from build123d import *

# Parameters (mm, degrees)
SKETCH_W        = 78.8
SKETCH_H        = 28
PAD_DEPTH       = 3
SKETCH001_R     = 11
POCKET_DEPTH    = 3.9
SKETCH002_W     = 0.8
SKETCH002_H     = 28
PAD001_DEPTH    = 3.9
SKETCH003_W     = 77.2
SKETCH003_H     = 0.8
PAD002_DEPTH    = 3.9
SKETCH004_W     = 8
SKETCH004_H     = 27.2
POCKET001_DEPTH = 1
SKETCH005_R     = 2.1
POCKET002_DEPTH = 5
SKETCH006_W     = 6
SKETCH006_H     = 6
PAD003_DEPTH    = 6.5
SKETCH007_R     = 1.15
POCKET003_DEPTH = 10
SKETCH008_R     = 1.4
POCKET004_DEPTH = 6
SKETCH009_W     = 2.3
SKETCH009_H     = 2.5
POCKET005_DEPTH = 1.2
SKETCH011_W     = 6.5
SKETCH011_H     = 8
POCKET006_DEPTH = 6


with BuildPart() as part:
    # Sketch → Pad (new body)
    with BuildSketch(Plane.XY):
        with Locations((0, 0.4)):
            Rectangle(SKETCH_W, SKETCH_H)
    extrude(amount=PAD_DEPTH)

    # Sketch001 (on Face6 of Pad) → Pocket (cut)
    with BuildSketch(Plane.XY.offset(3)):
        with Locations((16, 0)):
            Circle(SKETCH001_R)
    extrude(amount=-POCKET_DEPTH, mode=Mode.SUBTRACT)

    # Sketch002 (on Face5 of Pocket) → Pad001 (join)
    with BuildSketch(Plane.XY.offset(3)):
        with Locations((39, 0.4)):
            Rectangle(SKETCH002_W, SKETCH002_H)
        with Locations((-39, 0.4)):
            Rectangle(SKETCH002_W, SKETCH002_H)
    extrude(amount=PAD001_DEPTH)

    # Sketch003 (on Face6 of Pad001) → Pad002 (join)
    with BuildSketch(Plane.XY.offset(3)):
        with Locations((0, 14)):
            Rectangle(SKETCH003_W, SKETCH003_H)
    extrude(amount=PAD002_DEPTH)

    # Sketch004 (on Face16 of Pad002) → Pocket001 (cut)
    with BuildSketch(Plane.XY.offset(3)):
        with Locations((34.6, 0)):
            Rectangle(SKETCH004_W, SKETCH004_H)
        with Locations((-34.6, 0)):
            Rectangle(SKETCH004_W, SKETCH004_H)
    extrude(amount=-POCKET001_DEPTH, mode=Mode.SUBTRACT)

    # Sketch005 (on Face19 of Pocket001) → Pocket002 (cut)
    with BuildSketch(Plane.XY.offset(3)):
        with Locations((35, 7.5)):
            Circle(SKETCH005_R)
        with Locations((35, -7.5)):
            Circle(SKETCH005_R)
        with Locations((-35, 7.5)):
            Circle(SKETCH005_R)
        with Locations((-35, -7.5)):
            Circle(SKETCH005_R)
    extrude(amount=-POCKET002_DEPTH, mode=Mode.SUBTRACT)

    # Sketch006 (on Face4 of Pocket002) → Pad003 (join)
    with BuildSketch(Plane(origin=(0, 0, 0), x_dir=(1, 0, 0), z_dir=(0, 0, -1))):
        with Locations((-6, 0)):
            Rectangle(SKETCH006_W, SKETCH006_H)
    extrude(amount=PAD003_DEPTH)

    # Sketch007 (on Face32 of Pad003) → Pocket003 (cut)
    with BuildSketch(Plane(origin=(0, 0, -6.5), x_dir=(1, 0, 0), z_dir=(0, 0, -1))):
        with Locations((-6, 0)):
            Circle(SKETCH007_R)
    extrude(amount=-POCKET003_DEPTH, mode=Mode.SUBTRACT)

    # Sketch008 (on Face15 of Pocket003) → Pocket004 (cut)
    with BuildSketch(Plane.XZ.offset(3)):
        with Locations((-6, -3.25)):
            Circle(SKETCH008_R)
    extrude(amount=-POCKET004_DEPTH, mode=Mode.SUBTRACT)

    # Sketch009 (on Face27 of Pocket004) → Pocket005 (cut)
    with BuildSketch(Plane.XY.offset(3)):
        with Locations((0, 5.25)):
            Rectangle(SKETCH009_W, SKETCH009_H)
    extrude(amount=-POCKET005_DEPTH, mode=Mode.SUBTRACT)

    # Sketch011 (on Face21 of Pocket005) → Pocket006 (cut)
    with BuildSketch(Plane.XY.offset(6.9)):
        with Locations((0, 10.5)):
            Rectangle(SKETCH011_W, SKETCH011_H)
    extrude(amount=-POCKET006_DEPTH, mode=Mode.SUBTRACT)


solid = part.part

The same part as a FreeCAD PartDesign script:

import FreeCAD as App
import Part
import Sketcher
Q = App.Units.Quantity


def add_polygon(sketch, points):
    """Adds a closed chain of lines whose ends are joined by coincident constraints."""
    first, n = sketch.GeometryCount, len(points)
    for a, b in zip(points, points[1:] + points[:1]):
        sketch.addGeometry(Part.LineSegment(App.Vector(*a, 0), App.Vector(*b, 0)), False)
    for i in range(n):
        sketch.addConstraint(Sketcher.Constraint("Coincident", first + i, 2, first + (i + 1) % n, 1))

doc = App.newDocument("Part")
body = doc.addObject("PartDesign::Body", "Body")

sketch1 = body.newObject("Sketcher::SketchObject", "Sketch")
sketch1.AttachmentSupport = (doc.getObject("XY_Plane"), [""])
sketch1.MapMode = "FlatFace"
add_polygon(sketch1, [(-39, 14), (-39, -14), (39, -14), (39, 14)])
sketch1.addConstraint([
    Sketcher.Constraint("Vertical", 0),
    Sketcher.Constraint("Horizontal", 1),
    Sketcher.Constraint("Vertical", 2),
    Sketcher.Constraint("Horizontal", 3),
    Sketcher.Constraint("DistanceY", 0, 2, 0, 1, Q("28 mm")),
    Sketcher.Constraint("DistanceX", 1, 1, 1, 2, Q("78.8 mm")),
    Sketcher.Constraint("DistanceX", 0, 2, -1, 1, Q("39.4 mm")),
    Sketcher.Constraint("DistanceY", 0, 2, -1, 1, Q("13.6 mm")),
])
pad1 = body.newObject("PartDesign::Pad", "Pad")
pad1.Profile = sketch1
pad1.Length = 3

sketch2 = body.newObject("Sketcher::SketchObject", "Sketch001")
sketch2.AttachmentSupport = (doc.getObject("XY_Plane"), [""])
sketch2.MapMode = "FlatFace"
sketch2.AttachmentOffset = App.Placement(App.Vector(0, 0, 3), App.Rotation())
sketch2.addGeometry(Part.Circle(App.Vector(16, 0, 0), App.Vector(0, 0, 1), 11), False)
sketch2.addConstraint([
    Sketcher.Constraint("PointOnObject", 0, 3, -1),
    Sketcher.Constraint("Diameter", 0, Q("22 mm")),
    Sketcher.Constraint("DistanceX", -1, 1, 0, 3, Q("16 mm")),
])
pocket1 = body.newObject("PartDesign::Pocket", "Pocket")
pocket1.Profile = sketch2
pocket1.Length = 3.9

sketch3 = body.newObject("Sketcher::SketchObject", "Sketch002")
sketch3.AttachmentSupport = (doc.getObject("XY_Plane"), [""])
sketch3.MapMode = "FlatFace"
sketch3.AttachmentOffset = App.Placement(App.Vector(0, 0, 3), App.Rotation())
add_polygon(sketch3, [(38.6, 14.4), (38.6, -13.6), (39.4, -13.6), (39.4, 14.4)])
add_polygon(sketch3, [(-39.4, 14.4), (-39.4, -13.6), (-38.6, -13.6), (-38.6, 14.4)])
sketch3.addConstraint([
    Sketcher.Constraint("Vertical", 0),
    Sketcher.Constraint("Horizontal", 1),
    Sketcher.Constraint("Vertical", 2),
    Sketcher.Constraint("Horizontal", 3),
    Sketcher.Constraint("Vertical", 4),
    Sketcher.Constraint("Horizontal", 5),
    Sketcher.Constraint("Vertical", 6),
    Sketcher.Constraint("Horizontal", 7),
    Sketcher.Constraint("Symmetric", 1, 2, 4, 2, -2),
    Sketcher.Constraint("Symmetric", 3, 2, 6, 2, -2),
    Sketcher.Constraint("DistanceY", 0, 2, 0, 1, Q("28 mm")),
    Sketcher.Constraint("DistanceX", 1, 1, 1, 2, Q("0.8 mm")),
    Sketcher.Constraint("DistanceX", 4, 2, 0, 2, Q("78 mm")),
    Sketcher.Constraint("DistanceY", 0, 2, -1, 1, Q("13.6 mm")),
])
pad2 = body.newObject("PartDesign::Pad", "Pad001")
pad2.Profile = sketch3
pad2.Length = 3.9

sketch4 = body.newObject("Sketcher::SketchObject", "Sketch003")
sketch4.AttachmentSupport = (doc.getObject("XY_Plane"), [""])
sketch4.MapMode = "FlatFace"
sketch4.AttachmentOffset = App.Placement(App.Vector(0, 0, 3), App.Rotation())
add_polygon(sketch4, [(-38.6, 14.4), (-38.6, 13.6), (38.6, 13.6), (38.6, 14.4)])
sketch4.addConstraint([
    Sketcher.Constraint("Vertical", 0),
    Sketcher.Constraint("Horizontal", 1),
    Sketcher.Constraint("Vertical", 2),
    Sketcher.Constraint("Horizontal", 3),
    Sketcher.Constraint("DistanceX", 1, 1, 1, 2, Q("77.2 mm")),
    Sketcher.Constraint("DistanceY", 0, 2, 0, 1, Q("0.8 mm")),
    Sketcher.Constraint("DistanceX", 0, 2, -1, 1, Q("38.6 mm")),
    Sketcher.Constraint("DistanceY", -1, 1, 0, 2, Q("13.6 mm")),
])
pad3 = body.newObject("PartDesign::Pad", "Pad002")
pad3.Profile = sketch4
pad3.Length = 3.9

sketch5 = body.newObject("Sketcher::SketchObject", "Sketch004")
sketch5.AttachmentSupport = (doc.getObject("XY_Plane"), [""])
sketch5.MapMode = "FlatFace"
sketch5.AttachmentOffset = App.Placement(App.Vector(0, 0, 3), App.Rotation())
add_polygon(sketch5, [(31, 14), (31, -14), (39, -14), (39, 14)])
add_polygon(sketch5, [(-39, 14), (-39, -14), (-31, -14), (-31, 14)])
sketch5.addConstraint([
    Sketcher.Constraint("Vertical", 0),
    Sketcher.Constraint("Horizontal", 1),
    Sketcher.Constraint("Vertical", 2),
    Sketcher.Constraint("Horizontal", 3),
    Sketcher.Constraint("Vertical", 4),
    Sketcher.Constraint("Horizontal", 5),
    Sketcher.Constraint("Vertical", 6),
    Sketcher.Constraint("Horizontal", 7),
    Sketcher.Constraint("Symmetric", 2, 2, 4, 2, -1, 1),
    Sketcher.Constraint("Symmetric", 0, 2, 6, 2, -1, 1),
    Sketcher.Constraint("Horizontal", 1, 2, 4, 2),
    Sketcher.Constraint("DistanceX", 1, 1, 1, 2, Q("8 mm")),
    Sketcher.Constraint("DistanceY", 0, 2, 0, 1, Q("27.2 mm")),
    Sketcher.Constraint("DistanceX", -1, 1, 0, 2, Q("30.6 mm")),
])
pocket2 = body.newObject("PartDesign::Pocket", "Pocket001")
pocket2.Profile = sketch5
pocket2.Length = 1

sketch6 = body.newObject("Sketcher::SketchObject", "Sketch005")
sketch6.AttachmentSupport = (doc.getObject("XY_Plane"), [""])
sketch6.MapMode = "FlatFace"
sketch6.AttachmentOffset = App.Placement(App.Vector(0, 0, 3), App.Rotation())
sketch6.addGeometry([
    Part.Circle(App.Vector(35, 7.5, 0), App.Vector(0, 0, 1), 2.1),
    Part.Circle(App.Vector(35, -7.5, 0), App.Vector(0, 0, 1), 2.1),
    Part.Circle(App.Vector(-35, 7.5, 0), App.Vector(0, 0, 1), 2.1),
    Part.Circle(App.Vector(-35, -7.5, 0), App.Vector(0, 0, 1), 2.1),
], False)
sketch6.addConstraint([
    Sketcher.Constraint("Equal", 0, 1),
    Sketcher.Constraint("Equal", 1, 2),
    Sketcher.Constraint("Equal", 2, 3),
    Sketcher.Constraint("Symmetric", 1, 3, 2, 3, -1, 1),
    Sketcher.Constraint("Symmetric", 0, 3, 3, 3, -1, 1),
    Sketcher.Constraint("Symmetric", 0, 3, 2, 3, -2),
    Sketcher.Constraint("Diameter", 0, Q("4.2 mm")),
    Sketcher.Constraint("DistanceX", -1, 1, 0, 3, Q("35 mm")),
    Sketcher.Constraint("DistanceY", 1, 3, 0, 3, Q("15 mm")),
])
pocket3 = body.newObject("PartDesign::Pocket", "Pocket002")
pocket3.Profile = sketch6
pocket3.Length = 5

sketch7 = body.newObject("Sketcher::SketchObject", "Sketch006")
sketch7.AttachmentSupport = (doc.getObject("XY_Plane"), [""])
sketch7.MapMode = "FlatFace"
add_polygon(sketch7, [(-9, -3), (-9, 3), (-3, 3), (-3, -3)])
sketch7.addConstraint([
    Sketcher.Constraint("Vertical", 0),
    Sketcher.Constraint("Horizontal", 1),
    Sketcher.Constraint("Vertical", 2),
    Sketcher.Constraint("Horizontal", 3),
    Sketcher.Constraint("Equal", 3, 0),
    Sketcher.Constraint("DistanceX", 1, 1, 1, 2, Q("6 mm")),
    Sketcher.Constraint("DistanceX", 0, 2, -1, 1, Q("9 mm")),
    Sketcher.Constraint("DistanceY", -1, 1, 0, 2, Q("3 mm")),
])
pad4 = body.newObject("PartDesign::Pad", "Pad003")
pad4.Profile = sketch7
pad4.Length = 6.5
pad4.Reversed = True

sketch8 = body.newObject("Sketcher::SketchObject", "Sketch007")
sketch8.AttachmentSupport = (doc.getObject("XY_Plane"), [""])
sketch8.MapMode = "FlatFace"
sketch8.AttachmentOffset = App.Placement(App.Vector(0, 0, -6.5), App.Rotation())
sketch8.addGeometry(Part.Circle(App.Vector(-6, 0, 0), App.Vector(0, 0, 1), 1.1), False)
sketch8.addConstraint([
    Sketcher.Constraint("PointOnObject", 0, 3, -1),
    Sketcher.Constraint("Diameter", 0, Q("2.3 mm")),
    Sketcher.Constraint("DistanceX", 0, 3, -1, 1, Q("6 mm")),
])
pocket4 = body.newObject("PartDesign::Pocket", "Pocket003")
pocket4.Profile = sketch8
pocket4.Length = 10
pocket4.Reversed = True

sketch9 = body.newObject("Sketcher::SketchObject", "Sketch008")
sketch9.AttachmentSupport = (doc.getObject("XZ_Plane"), [""])
sketch9.MapMode = "FlatFace"
sketch9.AttachmentOffset = App.Placement(App.Vector(0, 0, 3), App.Rotation())
sketch9.addGeometry(Part.Circle(App.Vector(-6, -3.2, 0), App.Vector(0, 0, 1), 1.4), False)
sketch9.addConstraint([
    Sketcher.Constraint("Diameter", 0, Q("2.8 mm")),
    Sketcher.Constraint("DistanceX", 0, 3, -1, 1, Q("6 mm")),
    Sketcher.Constraint("DistanceY", 0, 3, -1, 1, Q("3.25 mm")),
])
pocket5 = body.newObject("PartDesign::Pocket", "Pocket004")
pocket5.Profile = sketch9
pocket5.Length = 6

sketch10 = body.newObject("Sketcher::SketchObject", "Sketch009")
sketch10.AttachmentSupport = (doc.getObject("XY_Plane"), [""])
sketch10.MapMode = "FlatFace"
sketch10.AttachmentOffset = App.Placement(App.Vector(0, 0, 3), App.Rotation())
add_polygon(sketch10, [(-1.1, 6.5), (-1.1, 4), (1.1, 4), (1.1, 6.5)])
sketch10.addConstraint([
    Sketcher.Constraint("Vertical", 0),
    Sketcher.Constraint("Horizontal", 1),
    Sketcher.Constraint("Vertical", 2),
    Sketcher.Constraint("Horizontal", 3),
    Sketcher.Constraint("DistanceX", 1, 1, 1, 2, Q("2.3 mm")),
    Sketcher.Constraint("DistanceY", 0, 2, 0, 1, Q("2.5 mm")),
    Sketcher.Constraint("DistanceY", -1, 1, 0, 2, Q("4 mm")),
    Sketcher.Constraint("DistanceX", 0, 2, -1, 1, Q("1.15 mm")),
])
pocket6 = body.newObject("PartDesign::Pocket", "Pocket005")
pocket6.Profile = sketch10
pocket6.Length = 1.2

sketch11 = body.newObject("Sketcher::SketchObject", "Sketch010")
sketch11.AttachmentSupport = (doc.getObject("XY_Plane"), [""])
sketch11.MapMode = "FlatFace"
sketch11.AttachmentOffset = App.Placement(App.Vector(0, 0, 6.9), App.Rotation())
add_polygon(sketch11, [(-3, 14), (-3, 6), (3, 6), (3, 14)])
sketch11.addConstraint([
    Sketcher.Constraint("Vertical", 0),
    Sketcher.Constraint("Horizontal", 1),
    Sketcher.Constraint("Vertical", 2),
    Sketcher.Constraint("Horizontal", 3),
    Sketcher.Constraint("DistanceY", 0, 2, 0, 1, Q("8 mm")),
    Sketcher.Constraint("DistanceX", 1, 1, 1, 2, Q("6.5 mm")),
    Sketcher.Constraint("DistanceY", -1, 1, 0, 2, Q("6.5 mm")),
    Sketcher.Constraint("DistanceX", 0, 2, -1, 1, Q("3.25 mm")),
])
pocket7 = body.newObject("PartDesign::Pocket", "Pocket006")
pocket7.Profile = sketch11
pocket7.Length = 6

doc.recompute()
